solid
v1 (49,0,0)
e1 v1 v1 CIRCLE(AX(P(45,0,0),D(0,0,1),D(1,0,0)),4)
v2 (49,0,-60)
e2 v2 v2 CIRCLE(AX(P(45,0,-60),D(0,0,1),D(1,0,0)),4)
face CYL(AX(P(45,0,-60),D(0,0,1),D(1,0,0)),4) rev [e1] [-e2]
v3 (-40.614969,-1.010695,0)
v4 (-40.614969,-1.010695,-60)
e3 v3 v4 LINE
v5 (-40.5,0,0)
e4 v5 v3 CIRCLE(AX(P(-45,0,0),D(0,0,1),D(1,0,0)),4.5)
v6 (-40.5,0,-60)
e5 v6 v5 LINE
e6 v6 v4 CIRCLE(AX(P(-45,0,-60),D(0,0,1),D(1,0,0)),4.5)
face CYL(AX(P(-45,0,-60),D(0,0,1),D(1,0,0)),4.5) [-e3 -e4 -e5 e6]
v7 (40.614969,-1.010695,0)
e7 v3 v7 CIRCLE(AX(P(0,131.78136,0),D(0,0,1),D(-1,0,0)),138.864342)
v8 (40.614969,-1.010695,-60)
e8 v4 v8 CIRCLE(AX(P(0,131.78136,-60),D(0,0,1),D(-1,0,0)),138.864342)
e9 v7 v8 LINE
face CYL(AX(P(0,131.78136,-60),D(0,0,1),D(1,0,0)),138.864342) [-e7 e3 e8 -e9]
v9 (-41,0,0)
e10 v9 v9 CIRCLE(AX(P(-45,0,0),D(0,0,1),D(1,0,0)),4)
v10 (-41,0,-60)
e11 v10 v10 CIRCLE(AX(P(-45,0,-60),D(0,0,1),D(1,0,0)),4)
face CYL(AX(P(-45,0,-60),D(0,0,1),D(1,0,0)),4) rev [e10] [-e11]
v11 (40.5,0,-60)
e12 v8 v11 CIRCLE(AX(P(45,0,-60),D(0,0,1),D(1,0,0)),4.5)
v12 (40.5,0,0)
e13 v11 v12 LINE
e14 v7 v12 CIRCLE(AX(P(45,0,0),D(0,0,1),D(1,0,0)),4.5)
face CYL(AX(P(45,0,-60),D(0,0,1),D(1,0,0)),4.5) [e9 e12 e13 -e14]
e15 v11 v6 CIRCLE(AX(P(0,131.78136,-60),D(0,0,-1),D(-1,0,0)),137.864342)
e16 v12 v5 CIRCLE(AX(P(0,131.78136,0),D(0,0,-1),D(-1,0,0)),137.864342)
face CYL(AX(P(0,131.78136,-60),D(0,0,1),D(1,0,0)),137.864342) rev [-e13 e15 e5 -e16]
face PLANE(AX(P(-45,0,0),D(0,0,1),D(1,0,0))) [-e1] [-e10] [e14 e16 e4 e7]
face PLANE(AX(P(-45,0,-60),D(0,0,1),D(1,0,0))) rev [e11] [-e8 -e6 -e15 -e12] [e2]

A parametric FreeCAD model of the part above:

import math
import FreeCAD as App
import Part
import Sketcher
Q = App.Units.Quantity

doc = App.newDocument("Part")
body = doc.addObject("PartDesign::Body", "Body")

# Sketch on XY plane
sketch1 = body.newObject("Sketcher::SketchObject", "Sketch")
sketch1.AttachmentSupport = (doc.getObject("XY_Plane"), [""])
sketch1.MapMode = "FlatFace"
sketch1.addGeometry([
    Part.Circle(App.Vector(-45, 0, 0), App.Vector(0, 0, 1), 4.5),
    Part.Circle(App.Vector(-45, 0, 0), App.Vector(0, 0, 1), 4),
], False)
sketch1.addConstraint([
    Sketcher.Constraint("Coincident", 1, 3, 0, 3),
    Sketcher.Constraint("PointOnObject", 0, 3, -1),
    Sketcher.Constraint("Diameter", 0, Q("9 mm")),
    Sketcher.Constraint("Diameter", 1, Q("8 mm")),
    Sketcher.Constraint("DistanceX", 0, 3, -1, 1, Q("45 mm")),
])
pad1 = body.newObject("PartDesign::Pad", "Pad")
pad1.Profile = sketch1
pad1.Length = 60
pad1.Reversed = True
body2 = doc.addObject("PartDesign::Body", "Body001")

# Sketch on XY plane
sketch2 = body2.newObject("Sketcher::SketchObject", "Sketch001")
sketch2.AttachmentSupport = (doc.getObject("XY_Plane001"), [""])
sketch2.MapMode = "FlatFace"
sketch2.addGeometry([
    Part.Circle(App.Vector(45, 0, 0), App.Vector(0, 0, 1), 4.5),
    Part.Circle(App.Vector(45, 0, 0), App.Vector(0, 0, 1), 4),
], False)
sketch2.addConstraint([
    Sketcher.Constraint("Coincident", 1, 3, 0, 3),
    Sketcher.Constraint("PointOnObject", 0, 3, -1),
    Sketcher.Constraint("Diameter", 0, Q("9 mm")),
    Sketcher.Constraint("Diameter", 1, Q("8 mm")),
    Sketcher.Constraint("DistanceX", -1, 1, 0, 3, Q("45 mm")),
])
pad2 = body2.newObject("PartDesign::Pad", "Pad001")
pad2.Profile = sketch2
pad2.Length = 60
pad2.Reversed = True
body.AllowCompound = True
doc.recompute()

boolean = body.newObject("PartDesign::Boolean", "Boolean")
boolean.Type = "Fuse"
boolean.addObjects([body2])

# Sketch on XY plane
sketch3 = body.newObject("Sketcher::SketchObject", "Sketch002")
sketch3.AttachmentSupport = (doc.getObject("XY_Plane"), [""])
sketch3.MapMode = "FlatFace"
sketch3.addGeometry([
    Part.LineSegment(App.Vector(40.8, -1, 0), App.Vector(40.5, 0, 0)),
    Part.ArcOfCircle(Part.Circle(App.Vector(0, 131.8, 0), App.Vector(0, 0, 1), 137.9), math.radians(-107), math.radians(-73)),
    Part.LineSegment(App.Vector(-40.5, 0, 0), App.Vector(-40.8, -1, 0)),
    Part.ArcOfCircle(Part.Circle(App.Vector(0, 131.8, 0), App.Vector(0, 0, 1), 138.9), math.radians(-107), math.radians(-73)),
], False)
sketch3.addConstraint([
    Sketcher.Constraint("Coincident", 0, 2, 1, 2),
    Sketcher.Constraint("Coincident", 1, 1, 2, 1),
    Sketcher.Constraint("Coincident", 2, 2, 3, 1),
    Sketcher.Constraint("Coincident", 3, 2, 0, 1),
    Sketcher.Constraint("Coincident", 3, 3, 1, 3),
    Sketcher.Constraint("Symmetric", 0, 2, 1, 1, -1, 1),
    Sketcher.Constraint("Symmetric", 2, 2, 3, 2, -2),
    Sketcher.Constraint("Distance", 0, Q("1 mm")),
    Sketcher.Constraint("DistanceX", 1, 1, 0, 2, Q("81 mm")),
    Sketcher.Constraint("Radius", 1, Q("137.864342 mm")),
    Sketcher.Constraint("DistanceX", 2, 2, -1, 1, Q("40.793767 mm")),
])
pad3 = body.newObject("PartDesign::Pad", "Pad002")
pad3.Profile = sketch3
pad3.Length = 60
pad3.Reversed = True

doc.recompute()
